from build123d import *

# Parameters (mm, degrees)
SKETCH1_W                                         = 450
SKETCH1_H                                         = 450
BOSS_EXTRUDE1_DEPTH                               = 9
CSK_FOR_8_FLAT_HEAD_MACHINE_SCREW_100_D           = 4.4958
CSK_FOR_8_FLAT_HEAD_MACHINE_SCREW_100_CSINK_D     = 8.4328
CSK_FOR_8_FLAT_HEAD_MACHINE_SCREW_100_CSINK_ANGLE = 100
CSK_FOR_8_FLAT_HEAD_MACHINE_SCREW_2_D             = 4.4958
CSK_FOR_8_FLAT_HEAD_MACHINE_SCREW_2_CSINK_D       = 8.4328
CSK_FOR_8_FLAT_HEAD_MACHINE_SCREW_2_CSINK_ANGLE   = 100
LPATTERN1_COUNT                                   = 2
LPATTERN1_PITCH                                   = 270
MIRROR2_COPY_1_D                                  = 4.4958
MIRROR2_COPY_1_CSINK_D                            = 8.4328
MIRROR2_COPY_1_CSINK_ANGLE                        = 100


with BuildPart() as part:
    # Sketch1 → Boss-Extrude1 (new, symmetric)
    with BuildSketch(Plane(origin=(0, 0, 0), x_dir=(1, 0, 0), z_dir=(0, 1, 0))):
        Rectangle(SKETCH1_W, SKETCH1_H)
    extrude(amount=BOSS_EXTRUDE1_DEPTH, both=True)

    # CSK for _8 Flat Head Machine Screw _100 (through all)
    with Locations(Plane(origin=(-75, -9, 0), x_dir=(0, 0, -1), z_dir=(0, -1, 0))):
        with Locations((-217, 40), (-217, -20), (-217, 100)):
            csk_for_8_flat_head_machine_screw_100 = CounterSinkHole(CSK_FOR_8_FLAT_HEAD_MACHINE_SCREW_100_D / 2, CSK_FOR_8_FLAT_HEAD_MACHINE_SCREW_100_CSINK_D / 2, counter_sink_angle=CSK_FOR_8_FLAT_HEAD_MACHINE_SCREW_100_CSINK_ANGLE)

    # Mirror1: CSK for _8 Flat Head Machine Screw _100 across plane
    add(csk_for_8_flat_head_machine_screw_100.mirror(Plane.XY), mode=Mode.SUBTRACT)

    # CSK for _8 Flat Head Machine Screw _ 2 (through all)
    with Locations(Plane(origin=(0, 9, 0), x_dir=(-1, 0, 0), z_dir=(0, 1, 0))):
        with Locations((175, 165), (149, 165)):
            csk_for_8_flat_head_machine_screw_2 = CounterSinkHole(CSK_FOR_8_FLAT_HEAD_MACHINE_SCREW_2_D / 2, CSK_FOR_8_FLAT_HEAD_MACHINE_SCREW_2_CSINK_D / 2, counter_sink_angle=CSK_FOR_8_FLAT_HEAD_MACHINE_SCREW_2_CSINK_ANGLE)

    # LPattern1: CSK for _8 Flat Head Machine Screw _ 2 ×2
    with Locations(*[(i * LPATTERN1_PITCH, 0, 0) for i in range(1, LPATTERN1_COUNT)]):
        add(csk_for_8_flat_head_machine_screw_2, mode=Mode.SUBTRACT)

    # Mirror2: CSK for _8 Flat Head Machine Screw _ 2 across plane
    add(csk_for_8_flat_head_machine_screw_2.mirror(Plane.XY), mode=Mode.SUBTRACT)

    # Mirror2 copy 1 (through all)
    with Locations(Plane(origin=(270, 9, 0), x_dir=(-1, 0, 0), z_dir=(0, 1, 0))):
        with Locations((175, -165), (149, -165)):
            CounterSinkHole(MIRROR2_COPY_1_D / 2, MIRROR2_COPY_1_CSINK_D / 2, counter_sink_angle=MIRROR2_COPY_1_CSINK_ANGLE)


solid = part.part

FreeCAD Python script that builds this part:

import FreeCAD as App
import Part
import Sketcher
Q = App.Units.Quantity


def add_polygon(sketch, points):
    """Adds a closed chain of lines whose ends are joined by coincident constraints."""
    first, n = sketch.GeometryCount, len(points)
    for a, b in zip(points, points[1:] + points[:1]):
        sketch.addGeometry(Part.LineSegment(App.Vector(*a, 0), App.Vector(*b, 0)), False)
    for i in range(n):
        sketch.addConstraint(Sketcher.Constraint("Coincident", first + i, 2, first + (i + 1) % n, 1))

doc = App.newDocument("Part")
body = doc.addObject("PartDesign::Body", "Body")

# Sketch on XZ plane
sketch1 = body.newObject("Sketcher::SketchObject", "Sketch")
sketch1.AttachmentSupport = (doc.getObject("XZ_Plane"), [""])
sketch1.MapMode = "FlatFace"
add_polygon(sketch1, [(-225, -225), (-225, 225), (225, 225), (225, -225)])  # lines 0-3
sketch1.addConstraint(Sketcher.Constraint("Vertical", 0))
sketch1.addConstraint(Sketcher.Constraint("Horizontal", 1))
sketch1.addConstraint(Sketcher.Constraint("Vertical", 2))
sketch1.addConstraint(Sketcher.Constraint("Horizontal", 3))
sketch1.addConstraint(Sketcher.Constraint("Symmetric", 0, 2, 2, 2, -1, 1))
sketch1.addConstraint(Sketcher.Constraint("Equal", 3, 0))
sketch1.addConstraint(Sketcher.Constraint("DistanceX", 1, 1, 1, 2, Q("450 mm")))
pad1 = body.newObject("PartDesign::Pad", "Pad")
pad1.Profile = sketch1
pad1.Length = 18
pad1.Midplane = True

# Sketch on XZ plane
sketch2 = body.newObject("Sketcher::SketchObject", "Sketch001")
sketch2.AttachmentSupport = (doc.getObject("XZ_Plane"), [""])
sketch2.MapMode = "FlatFace"
sketch2.AttachmentOffset = App.Placement(App.Vector(0, 0, 9), App.Rotation())
sketch2.addGeometry(Part.Circle(App.Vector(-35, 217, 0), App.Vector(0, 0, 1), 2.2), False)
sketch2.addGeometry(Part.Circle(App.Vector(-95, 217, 0), App.Vector(0, 0, 1), 2.2), False)
sketch2.addGeometry(Part.Circle(App.Vector(25, 217, 0), App.Vector(0, 0, 1), 2.2), False)
sketch2.addConstraint(Sketcher.Constraint("Equal", 0, 1))
sketch2.addConstraint(Sketcher.Constraint("Equal", 1, 2))
sketch2.addConstraint(Sketcher.Constraint("Horizontal", 0, 3, 1, 3))
sketch2.addConstraint(Sketcher.Constraint("Horizontal", 1, 3, 2, 3))
sketch2.addConstraint(Sketcher.Constraint("DistanceX", 0, 3, -1, 1, Q("35 mm")))
sketch2.addConstraint(Sketcher.Constraint("DistanceY", -1, 1, 0, 3, Q("217 mm")))
sketch2.addConstraint(Sketcher.Constraint("DistanceX", 1, 3, -1, 1, Q("95 mm")))
sketch2.addConstraint(Sketcher.Constraint("DistanceX", -1, 1, 2, 3, Q("25 mm")))
sketch2.addConstraint(Sketcher.Constraint("Diameter", 0, Q("4.4958 mm")))
doc.recompute()
hole = body.newObject("PartDesign::Hole", "Hole")
hole.Profile = sketch2
hole.ThreadType = "None"
hole.Diameter = 4.4958
hole.DepthType = "ThroughAll"
hole.HoleCutType = "Countersink"
hole.HoleCutDiameter = 8.4328
hole.HoleCutCountersinkAngle = 100
doc.recompute()

mirrored = body.newObject("PartDesign::Mirrored", "Mirrored")
mirrored.Originals = [hole]
mirrored.MirrorPlane = (doc.getObject("XY_Plane"), [""])
body.Tip = mirrored

# Sketch on XZ plane
sketch3 = body.newObject("Sketcher::SketchObject", "Sketch002")
sketch3.AttachmentSupport = (doc.getObject("XZ_Plane"), [""])
sketch3.MapMode = "FlatFace"
sketch3.AttachmentOffset = App.Placement(App.Vector(0, 0, -9), App.Rotation())
sketch3.addGeometry(Part.Circle(App.Vector(-175, 165, 0), App.Vector(0, 0, 1), 2.2), False)
sketch3.addGeometry(Part.Circle(App.Vector(-149, 165, 0), App.Vector(0, 0, 1), 2.2), False)
sketch3.addConstraint(Sketcher.Constraint("Equal", 0, 1))
sketch3.addConstraint(Sketcher.Constraint("Horizontal", 0, 3, 1, 3))
sketch3.addConstraint(Sketcher.Constraint("DistanceX", 0, 3, -1, 1, Q("175 mm")))
sketch3.addConstraint(Sketcher.Constraint("DistanceY", -1, 1, 0, 3, Q("165 mm")))
sketch3.addConstraint(Sketcher.Constraint("DistanceX", 1, 3, -1, 1, Q("149 mm")))
sketch3.addConstraint(Sketcher.Constraint("Diameter", 0, Q("4.4958 mm")))
doc.recompute()
hole2 = body.newObject("PartDesign::Hole", "Hole001")
hole2.Profile = sketch3
hole2.ThreadType = "None"
hole2.Diameter = 4.4958
hole2.DepthType = "ThroughAll"
hole2.HoleCutType = "Countersink"
hole2.HoleCutDiameter = 8.4328
hole2.HoleCutCountersinkAngle = 100
hole2.Reversed = True
doc.recompute()

linearpattern = body.newObject("PartDesign::LinearPattern", "LinearPattern")
linearpattern.Originals = [hole2]
linearpattern.Direction = (doc.getObject("X_Axis"), [""])
linearpattern.Mode = "offset"
linearpattern.Offset = 270
linearpattern.Occurrences = 2
body.Tip = linearpattern
doc.recompute()

mirrored2 = body.newObject("PartDesign::Mirrored", "Mirrored001")
mirrored2.Originals = [hole2]
mirrored2.MirrorPlane = (doc.getObject("XY_Plane"), [""])
body.Tip = mirrored2

# Sketch on XZ plane
sketch4 = body.newObject("Sketcher::SketchObject", "Sketch003")
sketch4.AttachmentSupport = (doc.getObject("XZ_Plane"), [""])
sketch4.MapMode = "FlatFace"
sketch4.AttachmentOffset = App.Placement(App.Vector(0, 0, -9), App.Rotation())
sketch4.addGeometry(Part.Circle(App.Vector(95, -165, 0), App.Vector(0, 0, 1), 2.2), False)
sketch4.addGeometry(Part.Circle(App.Vector(121, -165, 0), App.Vector(0, 0, 1), 2.2), False)
sketch4.addConstraint(Sketcher.Constraint("Equal", 0, 1))
sketch4.addConstraint(Sketcher.Constraint("Horizontal", 0, 3, 1, 3))
sketch4.addConstraint(Sketcher.Constraint("DistanceX", -1, 1, 0, 3, Q("95 mm")))
sketch4.addConstraint(Sketcher.Constraint("DistanceY", 0, 3, -1, 1, Q("165 mm")))
sketch4.addConstraint(Sketcher.Constraint("DistanceX", -1, 1, 1, 3, Q("121 mm")))
sketch4.addConstraint(Sketcher.Constraint("Diameter", 0, Q("4.4958 mm")))
doc.recompute()
hole3 = body.newObject("PartDesign::Hole", "Hole002")
hole3.Profile = sketch4
hole3.ThreadType = "None"
hole3.Diameter = 4.4958
hole3.DepthType = "ThroughAll"
hole3.HoleCutType = "Countersink"
hole3.HoleCutDiameter = 8.4328
hole3.HoleCutCountersinkAngle = 100
hole3.Reversed = True

doc.recompute()
